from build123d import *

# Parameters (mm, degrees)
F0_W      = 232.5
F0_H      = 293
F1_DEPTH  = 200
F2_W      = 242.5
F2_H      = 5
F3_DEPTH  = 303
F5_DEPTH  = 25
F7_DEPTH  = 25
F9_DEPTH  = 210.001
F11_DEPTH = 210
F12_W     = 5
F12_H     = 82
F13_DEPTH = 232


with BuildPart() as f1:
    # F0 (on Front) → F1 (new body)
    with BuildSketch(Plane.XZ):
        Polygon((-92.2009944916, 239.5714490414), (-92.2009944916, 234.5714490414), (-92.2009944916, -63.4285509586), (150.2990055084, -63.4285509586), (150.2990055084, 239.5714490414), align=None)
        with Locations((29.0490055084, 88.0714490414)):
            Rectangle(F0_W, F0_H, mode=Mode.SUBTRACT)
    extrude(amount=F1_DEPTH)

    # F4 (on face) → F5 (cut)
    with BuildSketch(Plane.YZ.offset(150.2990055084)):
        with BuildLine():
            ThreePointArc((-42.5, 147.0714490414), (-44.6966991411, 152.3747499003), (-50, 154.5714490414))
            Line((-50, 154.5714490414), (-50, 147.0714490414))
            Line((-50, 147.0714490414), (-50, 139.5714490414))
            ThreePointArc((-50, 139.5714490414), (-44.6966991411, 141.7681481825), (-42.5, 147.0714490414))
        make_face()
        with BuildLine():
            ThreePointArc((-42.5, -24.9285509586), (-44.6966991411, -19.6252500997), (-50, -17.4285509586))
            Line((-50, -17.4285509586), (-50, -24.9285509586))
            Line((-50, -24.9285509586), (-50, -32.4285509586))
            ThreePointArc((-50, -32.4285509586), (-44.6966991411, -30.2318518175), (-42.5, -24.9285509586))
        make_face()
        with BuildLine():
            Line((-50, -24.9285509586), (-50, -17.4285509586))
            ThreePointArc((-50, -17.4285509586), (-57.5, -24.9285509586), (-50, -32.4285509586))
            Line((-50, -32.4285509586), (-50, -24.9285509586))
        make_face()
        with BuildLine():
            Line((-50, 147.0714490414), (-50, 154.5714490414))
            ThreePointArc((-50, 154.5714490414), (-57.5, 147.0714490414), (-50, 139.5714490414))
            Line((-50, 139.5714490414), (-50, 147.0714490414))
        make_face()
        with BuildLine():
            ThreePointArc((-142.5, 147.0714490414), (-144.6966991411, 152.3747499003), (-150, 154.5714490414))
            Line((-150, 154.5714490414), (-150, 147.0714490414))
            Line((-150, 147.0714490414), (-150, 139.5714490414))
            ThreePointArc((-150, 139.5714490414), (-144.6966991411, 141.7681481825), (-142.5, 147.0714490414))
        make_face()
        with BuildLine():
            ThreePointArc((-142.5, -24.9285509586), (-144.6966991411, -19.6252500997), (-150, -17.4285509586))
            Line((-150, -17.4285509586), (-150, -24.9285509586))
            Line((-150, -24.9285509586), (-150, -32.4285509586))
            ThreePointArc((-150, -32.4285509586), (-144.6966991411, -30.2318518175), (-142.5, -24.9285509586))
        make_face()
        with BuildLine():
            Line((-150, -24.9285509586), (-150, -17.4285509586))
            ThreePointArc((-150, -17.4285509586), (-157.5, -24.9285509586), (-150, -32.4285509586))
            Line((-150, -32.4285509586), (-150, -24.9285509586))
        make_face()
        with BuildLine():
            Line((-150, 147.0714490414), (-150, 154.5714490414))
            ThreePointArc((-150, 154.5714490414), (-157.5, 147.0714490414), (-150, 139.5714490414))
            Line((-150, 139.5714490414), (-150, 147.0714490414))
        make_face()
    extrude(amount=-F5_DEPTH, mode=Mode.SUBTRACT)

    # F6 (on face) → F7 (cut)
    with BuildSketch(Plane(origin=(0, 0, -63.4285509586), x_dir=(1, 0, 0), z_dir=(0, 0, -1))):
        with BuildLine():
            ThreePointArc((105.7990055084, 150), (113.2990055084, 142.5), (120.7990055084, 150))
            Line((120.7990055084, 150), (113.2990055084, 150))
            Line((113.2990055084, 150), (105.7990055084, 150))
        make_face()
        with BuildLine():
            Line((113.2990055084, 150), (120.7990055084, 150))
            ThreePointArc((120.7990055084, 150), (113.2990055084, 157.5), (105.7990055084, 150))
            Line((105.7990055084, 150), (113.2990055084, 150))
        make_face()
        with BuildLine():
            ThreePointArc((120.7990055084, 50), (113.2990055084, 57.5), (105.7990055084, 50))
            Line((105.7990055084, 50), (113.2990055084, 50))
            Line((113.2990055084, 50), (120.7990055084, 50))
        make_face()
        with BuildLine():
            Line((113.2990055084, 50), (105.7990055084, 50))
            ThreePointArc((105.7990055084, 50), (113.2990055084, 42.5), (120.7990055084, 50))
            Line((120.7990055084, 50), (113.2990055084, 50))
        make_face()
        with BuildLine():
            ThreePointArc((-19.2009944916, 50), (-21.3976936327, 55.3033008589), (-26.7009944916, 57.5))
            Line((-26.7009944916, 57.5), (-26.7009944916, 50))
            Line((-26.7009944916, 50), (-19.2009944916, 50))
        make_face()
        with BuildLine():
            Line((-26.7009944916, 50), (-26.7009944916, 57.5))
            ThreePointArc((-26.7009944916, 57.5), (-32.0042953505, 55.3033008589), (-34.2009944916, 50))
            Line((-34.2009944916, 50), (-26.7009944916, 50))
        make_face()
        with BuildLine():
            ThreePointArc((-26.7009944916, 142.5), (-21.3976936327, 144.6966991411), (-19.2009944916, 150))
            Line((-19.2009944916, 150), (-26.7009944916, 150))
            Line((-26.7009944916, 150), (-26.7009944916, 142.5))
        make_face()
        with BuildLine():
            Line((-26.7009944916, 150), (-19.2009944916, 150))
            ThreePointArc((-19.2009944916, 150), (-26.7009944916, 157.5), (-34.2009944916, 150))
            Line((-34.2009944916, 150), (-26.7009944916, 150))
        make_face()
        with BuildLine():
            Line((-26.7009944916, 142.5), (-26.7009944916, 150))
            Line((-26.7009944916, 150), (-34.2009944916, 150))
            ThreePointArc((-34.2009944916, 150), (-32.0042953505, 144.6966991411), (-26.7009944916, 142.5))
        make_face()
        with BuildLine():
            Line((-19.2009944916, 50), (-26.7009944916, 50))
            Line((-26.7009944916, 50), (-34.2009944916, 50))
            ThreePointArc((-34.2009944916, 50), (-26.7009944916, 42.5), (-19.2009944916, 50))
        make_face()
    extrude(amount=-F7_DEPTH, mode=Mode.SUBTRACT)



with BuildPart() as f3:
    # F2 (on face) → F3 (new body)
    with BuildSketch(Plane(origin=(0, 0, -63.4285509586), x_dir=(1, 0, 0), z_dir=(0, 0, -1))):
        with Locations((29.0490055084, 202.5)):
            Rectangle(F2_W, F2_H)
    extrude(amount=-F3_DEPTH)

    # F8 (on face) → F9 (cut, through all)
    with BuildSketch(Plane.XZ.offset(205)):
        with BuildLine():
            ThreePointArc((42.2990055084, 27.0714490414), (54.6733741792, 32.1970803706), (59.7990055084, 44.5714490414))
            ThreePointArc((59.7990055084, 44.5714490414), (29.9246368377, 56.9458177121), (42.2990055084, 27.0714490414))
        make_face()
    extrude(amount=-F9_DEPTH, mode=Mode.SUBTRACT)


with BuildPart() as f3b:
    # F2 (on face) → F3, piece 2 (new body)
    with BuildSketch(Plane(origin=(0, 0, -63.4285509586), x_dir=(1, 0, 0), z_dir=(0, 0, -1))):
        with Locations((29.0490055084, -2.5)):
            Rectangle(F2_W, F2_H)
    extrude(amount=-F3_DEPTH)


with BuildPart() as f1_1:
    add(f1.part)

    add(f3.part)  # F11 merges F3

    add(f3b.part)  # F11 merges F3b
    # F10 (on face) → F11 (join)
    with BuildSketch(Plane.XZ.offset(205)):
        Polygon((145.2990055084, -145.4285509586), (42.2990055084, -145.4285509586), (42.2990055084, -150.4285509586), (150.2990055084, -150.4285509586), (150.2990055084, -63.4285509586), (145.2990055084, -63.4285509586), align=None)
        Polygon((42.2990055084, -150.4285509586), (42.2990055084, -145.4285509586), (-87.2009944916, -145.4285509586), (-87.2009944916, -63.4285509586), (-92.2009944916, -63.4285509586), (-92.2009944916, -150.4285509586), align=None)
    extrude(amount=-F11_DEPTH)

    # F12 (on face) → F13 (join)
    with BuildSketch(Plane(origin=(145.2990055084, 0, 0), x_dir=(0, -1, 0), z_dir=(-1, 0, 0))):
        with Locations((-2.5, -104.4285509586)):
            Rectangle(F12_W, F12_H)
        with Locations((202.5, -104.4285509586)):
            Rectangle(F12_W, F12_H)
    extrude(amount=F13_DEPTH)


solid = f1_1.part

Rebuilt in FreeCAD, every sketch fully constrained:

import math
import FreeCAD as App
import Part
import Sketcher
from FreeCAD import Vector


def add_polygon(sketch, points):
    """Adds a closed chain of lines whose ends are joined by coincident constraints."""
    first, n = sketch.GeometryCount, len(points)
    for a, b in zip(points, points[1:] + points[:1]):
        sketch.addGeometry(Part.LineSegment(App.Vector(*a, 0), App.Vector(*b, 0)), False)
    for i in range(n):
        sketch.addConstraint(Sketcher.Constraint("Coincident", first + i, 2, first + (i + 1) % n, 1))

doc = App.newDocument("Part")
body = doc.addObject("PartDesign::Body", "Body")

# Sketch on XZ plane
sketch1 = body.newObject("Sketcher::SketchObject", "Sketch")
sketch1.AttachmentSupport = (doc.getObject("XZ_Plane"), [""])
sketch1.MapMode = "FlatFace"
add_polygon(sketch1, [(-92.200994, 239.571449), (-92.200994, -63.428551), (150.299006, -63.428551), (150.299006, 239.571449)])  # lines 0-3
add_polygon(sketch1, [(145.299006, -58.428551), (-87.200994, -58.428551), (-87.200994, 234.571449), (145.299006, 234.571449)])  # lines 4-7
sketch1.addConstraint([
    Sketcher.Constraint("Vertical", 0),
    Sketcher.Constraint("Horizontal", 1),
    Sketcher.Constraint("Vertical", 2),
    Sketcher.Constraint("Horizontal", 3),
    Sketcher.Constraint("Horizontal", 4),
    Sketcher.Constraint("Vertical", 5),
    Sketcher.Constraint("Horizontal", 6),
    Sketcher.Constraint("Vertical", 7),
    Sketcher.Constraint("DistanceY", 0, 2, 0, 1, 303.0),
    Sketcher.Constraint("DistanceY", 5, 1, 5, 2, 293.0),
    Sketcher.Constraint("DistanceX", 1, 1, 1, 2, 242.5),
    Sketcher.Constraint("DistanceX", 4, 2, 4, 1, 232.5),
    Sketcher.Constraint("DistanceX", 0, 2, 4, 2, 5.0),
    Sketcher.Constraint("DistanceY", 0, 2, 4, 2, 5.0),
    Sketcher.Constraint("DistanceY", 0, 2, -1, 1, 63.428551),
    Sketcher.Constraint("DistanceX", 0, 2, -1, 1, 92.200994),
])
pad1 = body.newObject("PartDesign::Pad", "Pad")
pad1.Profile = sketch1
pad1.Length = 200

# Sketch on YZ plane
sketch2 = body.newObject("Sketcher::SketchObject", "Sketch001")
sketch2.AttachmentSupport = (doc.getObject("YZ_Plane"), [""])
sketch2.MapMode = "FlatFace"
sketch2.AttachmentOffset = App.Placement(Vector(0, 0, 150.299006), App.Rotation())
sketch2.addGeometry([
    Part.Circle(Vector(-50, 147.071449, 0), Vector(0, 0, 1), 7.5),
    Part.Circle(Vector(-50, -24.928551, 0), Vector(0, 0, 1), 7.5),
    Part.Circle(Vector(-150, 147.071449, 0), Vector(0, 0, 1), 7.5),
    Part.Circle(Vector(-150, -24.928551, 0), Vector(0, 0, 1), 7.5),
], False)
sketch2.addConstraint([
    Sketcher.Constraint("Equal", 0, 1),
    Sketcher.Constraint("Equal", 1, 2),
    Sketcher.Constraint("Equal", 2, 3),
    Sketcher.Constraint("Horizontal", 0, 3, 2, 3),
    Sketcher.Constraint("Horizontal", 1, 3, 3, 3),
    Sketcher.Constraint("Vertical", 0, 3, 1, 3),
    Sketcher.Constraint("Vertical", 2, 3, 3, 3),
    Sketcher.Constraint("Diameter", 0, 15.0),
    Sketcher.Constraint("DistanceX", 0, 3, -1, 1, 50.0),
    Sketcher.Constraint("DistanceX", 2, 3, -1, 1, 150.0),
    Sketcher.Constraint("DistanceY", 1, 3, 0, 3, 172.0),
    Sketcher.Constraint("DistanceY", -1, 1, 0, 3, 147.071449),
])
pocket1 = body.newObject("PartDesign::Pocket", "Pocket")
pocket1.Profile = sketch2
pocket1.Length = 25

# Sketch on XY plane
sketch3 = body.newObject("Sketcher::SketchObject", "Sketch002")
sketch3.AttachmentSupport = (doc.getObject("XY_Plane"), [""])
sketch3.MapMode = "FlatFace"
sketch3.AttachmentOffset = App.Placement(Vector(0, 0, -63.428551), App.Rotation())
sketch3.addGeometry([
    Part.Circle(Vector(113.299006, -150, 0), Vector(0, 0, 1), 7.5),
    Part.Circle(Vector(113.299006, -50, 0), Vector(0, 0, 1), 7.5),
    Part.Circle(Vector(-26.700994, -50, 0), Vector(0, 0, 1), 7.5),
    Part.Circle(Vector(-26.700994, -150, 0), Vector(0, 0, 1), 7.5),
], False)
sketch3.addConstraint([
    Sketcher.Constraint("Equal", 0, 1),
    Sketcher.Constraint("Equal", 1, 2),
    Sketcher.Constraint("Equal", 2, 3),
    Sketcher.Constraint("Horizontal", 1, 3, 2, 3),
    Sketcher.Constraint("Horizontal", 0, 3, 3, 3),
    Sketcher.Constraint("Vertical", 0, 3, 1, 3),
    Sketcher.Constraint("Vertical", 2, 3, 3, 3),
    Sketcher.Constraint("Diameter", 0, 15.0),
    Sketcher.Constraint("DistanceY", 0, 3, -1, 1, 150.0),
    Sketcher.Constraint("DistanceY", 1, 3, -1, 1, 50.0),
    Sketcher.Constraint("DistanceX", 2, 3, 1, 3, 140.0),
    Sketcher.Constraint("DistanceX", -1, 1, 0, 3, 113.299006),
])
pocket2 = body.newObject("PartDesign::Pocket", "Pocket001")
pocket2.Profile = sketch3
pocket2.Length = 25
pocket2.Reversed = True
body2 = doc.addObject("PartDesign::Body", "Body001")

# Sketch on XY plane
sketch4 = body2.newObject("Sketcher::SketchObject", "Sketch003")
sketch4.AttachmentSupport = (doc.getObject("XY_Plane001"), [""])
sketch4.MapMode = "FlatFace"
sketch4.AttachmentOffset = App.Placement(Vector(0, 0, -63.428551), App.Rotation())
add_polygon(sketch4, [(-92.200994, -205), (-92.200994, -200), (150.299006, -200), (150.299006, -205)])  # lines 0-3
sketch4.addConstraint([
    Sketcher.Constraint("Vertical", 0),
    Sketcher.Constraint("Horizontal", 1),
    Sketcher.Constraint("Vertical", 2),
    Sketcher.Constraint("Horizontal", 3),
    Sketcher.Constraint("DistanceY", 0, 1, 0, 2, 5.0),
    Sketcher.Constraint("DistanceX", 1, 1, 1, 2, 242.5),
    Sketcher.Constraint("DistanceY", 0, 2, -1, 1, 200.0),
    Sketcher.Constraint("DistanceX", 0, 2, -1, 1, 92.200994),
])
pad2 = body2.newObject("PartDesign::Pad", "Pad001")
pad2.Profile = sketch4
pad2.Length = 303

# Sketch on XZ plane
sketch5 = body2.newObject("Sketcher::SketchObject", "Sketch004")
sketch5.AttachmentSupport = (doc.getObject("XZ_Plane001"), [""])
sketch5.MapMode = "FlatFace"
sketch5.AttachmentOffset = App.Placement(Vector(0, 0, 205), App.Rotation())
sketch5.addGeometry([
    Part.ArcOfCircle(Part.Circle(Vector(42.299006, 44.571449, 0), Vector(0, 0, 1), 17.5), math.radians(-90), math.radians(0)),
    Part.ArcOfCircle(Part.Circle(Vector(42.299006, 44.571449, 0), Vector(0, 0, 1), 17.5), math.radians(0), math.radians(270)),
], False)
sketch5.addConstraint([
    Sketcher.Constraint("Tangent", 0, 1, 1, 2),
    Sketcher.Constraint("Coincident", 1, 1, 0, 2),
    Sketcher.Constraint("Horizontal", 0, 3, 1, 1),
    Sketcher.Constraint("Vertical", 1, 3, 0, 1),
    Sketcher.Constraint("Radius", 0, 17.5),
    Sketcher.Constraint("DistanceY", -1, 1, 0, 3, 44.571449),
    Sketcher.Constraint("DistanceX", -1, 1, 0, 3, 42.299006),
])
pocket3 = body2.newObject("PartDesign::Pocket", "Pocket002")
pocket3.Profile = sketch5
pocket3.Type = "ThroughAll"
body3 = doc.addObject("PartDesign::Body", "Body002")

# Sketch on XY plane
sketch6 = body3.newObject("Sketcher::SketchObject", "Sketch005")
sketch6.AttachmentSupport = (doc.getObject("XY_Plane002"), [""])
sketch6.MapMode = "FlatFace"
sketch6.AttachmentOffset = App.Placement(Vector(0, 0, -63.428551), App.Rotation())
add_polygon(sketch6, [(-92.200994, 0), (-92.200994, 5), (150.299006, 5), (150.299006, 0)])  # lines 0-3
sketch6.addConstraint([
    Sketcher.Constraint("Vertical", 0),
    Sketcher.Constraint("Horizontal", 1),
    Sketcher.Constraint("Vertical", 2),
    Sketcher.Constraint("Horizontal", 3),
    Sketcher.Constraint("PointOnObject", 2, 2, -1),
    Sketcher.Constraint("DistanceY", 0, 1, 0, 2, 5.0),
    Sketcher.Constraint("DistanceX", 1, 1, 1, 2, 242.5),
    Sketcher.Constraint("DistanceX", 0, 2, -1, 1, 92.200994),
])
pad3 = body3.newObject("PartDesign::Pad", "Pad002")
pad3.Profile = sketch6
pad3.Length = 303
doc.recompute()

boolean = body.newObject("PartDesign::Boolean", "Boolean")
boolean.Type = "Fuse"
boolean.addObjects([body2])
doc.recompute()

boolean2 = body.newObject("PartDesign::Boolean", "Boolean001")
boolean2.Type = "Fuse"
boolean2.addObjects([body3])

# Sketch on XZ plane
sketch7 = body.newObject("Sketcher::SketchObject", "Sketch006")
sketch7.AttachmentSupport = (doc.getObject("XZ_Plane"), [""])
sketch7.MapMode = "FlatFace"
sketch7.AttachmentOffset = App.Placement(Vector(0, 0, 205), App.Rotation())
add_polygon(sketch7, [(145.299006, -145.428551), (-87.200994, -145.428551), (-87.200994, -63.428551), (-92.200994, -63.428551), (-92.200994, -150.428551), (150.299006, -150.428551), (150.299006, -63.428551), (145.299006, -63.428551)])  # lines 0-7
sketch7.addConstraint([
    Sketcher.Constraint("Horizontal", 0),
    Sketcher.Constraint("Vertical", 1),
    Sketcher.Constraint("Horizontal", 2),
    Sketcher.Constraint("Vertical", 3),
    Sketcher.Constraint("Horizontal", 4),
    Sketcher.Constraint("Vertical", 5),
    Sketcher.Constraint("Horizontal", 6),
    Sketcher.Constraint("Vertical", 7),
    Sketcher.Constraint("Horizontal", 2, 2, 5, 2),
    Sketcher.Constraint("Equal", 2, 6),
    Sketcher.Constraint("DistanceX", 2, 2, 2, 1, 5.0),
    Sketcher.Constraint("DistanceY", 1, 1, 1, 2, 82.0),
    Sketcher.Constraint("DistanceY", 3, 2, 3, 1, 87.0),
    Sketcher.Constraint("DistanceX", 0, 2, 0, 1, 232.5),
    Sketcher.Constraint("DistanceY", 0, 2, -1, 1, 145.428551),
    Sketcher.Constraint("DistanceX", 0, 2, -1, 1, 87.200994),
])
pad4 = body.newObject("PartDesign::Pad", "Pad003")
pad4.Profile = sketch7
pad4.Length = 210
pad4.Reversed = True

# Sketch on YZ plane
sketch8 = body.newObject("Sketcher::SketchObject", "Sketch007")
sketch8.AttachmentSupport = (doc.getObject("YZ_Plane"), [""])
sketch8.MapMode = "FlatFace"
sketch8.AttachmentOffset = App.Placement(Vector(0, 0, 145.299006), App.Rotation())
add_polygon(sketch8, [(5, -63.428551), (5, -145.428551), (0, -145.428551), (0, -63.428551)])  # lines 0-3
add_polygon(sketch8, [(-200, -63.428551), (-200, -145.428551), (-205, -145.428551), (-205, -63.428551)])  # lines 4-7
sketch8.addConstraint([
    Sketcher.Constraint("Vertical", 0),
    Sketcher.Constraint("Horizontal", 1),
    Sketcher.Constraint("Vertical", 2),
    Sketcher.Constraint("Horizontal", 3),
    Sketcher.Constraint("Vertical", 4),
    Sketcher.Constraint("Horizontal", 5),
    Sketcher.Constraint("Vertical", 6),
    Sketcher.Constraint("Horizontal", 7),
    Sketcher.Constraint("PointOnObject", 1, 2, -2),
    Sketcher.Constraint("Horizontal", 1, 2, 4, 2),
    Sketcher.Constraint("Horizontal", 3, 2, 6, 2),
    Sketcher.Constraint("Equal", 3, 5),
    Sketcher.Constraint("DistanceX", 1, 2, 1, 1, 5.0),
    Sketcher.Constraint("DistanceY", 0, 2, 0, 1, 82.0),
    Sketcher.Constraint("DistanceX", 4, 2, -1, 1, 200.0),
    Sketcher.Constraint("DistanceY", 0, 2, -1, 1, 145.428551),
])
pad5 = body.newObject("PartDesign::Pad", "Pad004")
pad5.Profile = sketch8
pad5.Length = 232
pad5.Reversed = True

doc.recompute()
